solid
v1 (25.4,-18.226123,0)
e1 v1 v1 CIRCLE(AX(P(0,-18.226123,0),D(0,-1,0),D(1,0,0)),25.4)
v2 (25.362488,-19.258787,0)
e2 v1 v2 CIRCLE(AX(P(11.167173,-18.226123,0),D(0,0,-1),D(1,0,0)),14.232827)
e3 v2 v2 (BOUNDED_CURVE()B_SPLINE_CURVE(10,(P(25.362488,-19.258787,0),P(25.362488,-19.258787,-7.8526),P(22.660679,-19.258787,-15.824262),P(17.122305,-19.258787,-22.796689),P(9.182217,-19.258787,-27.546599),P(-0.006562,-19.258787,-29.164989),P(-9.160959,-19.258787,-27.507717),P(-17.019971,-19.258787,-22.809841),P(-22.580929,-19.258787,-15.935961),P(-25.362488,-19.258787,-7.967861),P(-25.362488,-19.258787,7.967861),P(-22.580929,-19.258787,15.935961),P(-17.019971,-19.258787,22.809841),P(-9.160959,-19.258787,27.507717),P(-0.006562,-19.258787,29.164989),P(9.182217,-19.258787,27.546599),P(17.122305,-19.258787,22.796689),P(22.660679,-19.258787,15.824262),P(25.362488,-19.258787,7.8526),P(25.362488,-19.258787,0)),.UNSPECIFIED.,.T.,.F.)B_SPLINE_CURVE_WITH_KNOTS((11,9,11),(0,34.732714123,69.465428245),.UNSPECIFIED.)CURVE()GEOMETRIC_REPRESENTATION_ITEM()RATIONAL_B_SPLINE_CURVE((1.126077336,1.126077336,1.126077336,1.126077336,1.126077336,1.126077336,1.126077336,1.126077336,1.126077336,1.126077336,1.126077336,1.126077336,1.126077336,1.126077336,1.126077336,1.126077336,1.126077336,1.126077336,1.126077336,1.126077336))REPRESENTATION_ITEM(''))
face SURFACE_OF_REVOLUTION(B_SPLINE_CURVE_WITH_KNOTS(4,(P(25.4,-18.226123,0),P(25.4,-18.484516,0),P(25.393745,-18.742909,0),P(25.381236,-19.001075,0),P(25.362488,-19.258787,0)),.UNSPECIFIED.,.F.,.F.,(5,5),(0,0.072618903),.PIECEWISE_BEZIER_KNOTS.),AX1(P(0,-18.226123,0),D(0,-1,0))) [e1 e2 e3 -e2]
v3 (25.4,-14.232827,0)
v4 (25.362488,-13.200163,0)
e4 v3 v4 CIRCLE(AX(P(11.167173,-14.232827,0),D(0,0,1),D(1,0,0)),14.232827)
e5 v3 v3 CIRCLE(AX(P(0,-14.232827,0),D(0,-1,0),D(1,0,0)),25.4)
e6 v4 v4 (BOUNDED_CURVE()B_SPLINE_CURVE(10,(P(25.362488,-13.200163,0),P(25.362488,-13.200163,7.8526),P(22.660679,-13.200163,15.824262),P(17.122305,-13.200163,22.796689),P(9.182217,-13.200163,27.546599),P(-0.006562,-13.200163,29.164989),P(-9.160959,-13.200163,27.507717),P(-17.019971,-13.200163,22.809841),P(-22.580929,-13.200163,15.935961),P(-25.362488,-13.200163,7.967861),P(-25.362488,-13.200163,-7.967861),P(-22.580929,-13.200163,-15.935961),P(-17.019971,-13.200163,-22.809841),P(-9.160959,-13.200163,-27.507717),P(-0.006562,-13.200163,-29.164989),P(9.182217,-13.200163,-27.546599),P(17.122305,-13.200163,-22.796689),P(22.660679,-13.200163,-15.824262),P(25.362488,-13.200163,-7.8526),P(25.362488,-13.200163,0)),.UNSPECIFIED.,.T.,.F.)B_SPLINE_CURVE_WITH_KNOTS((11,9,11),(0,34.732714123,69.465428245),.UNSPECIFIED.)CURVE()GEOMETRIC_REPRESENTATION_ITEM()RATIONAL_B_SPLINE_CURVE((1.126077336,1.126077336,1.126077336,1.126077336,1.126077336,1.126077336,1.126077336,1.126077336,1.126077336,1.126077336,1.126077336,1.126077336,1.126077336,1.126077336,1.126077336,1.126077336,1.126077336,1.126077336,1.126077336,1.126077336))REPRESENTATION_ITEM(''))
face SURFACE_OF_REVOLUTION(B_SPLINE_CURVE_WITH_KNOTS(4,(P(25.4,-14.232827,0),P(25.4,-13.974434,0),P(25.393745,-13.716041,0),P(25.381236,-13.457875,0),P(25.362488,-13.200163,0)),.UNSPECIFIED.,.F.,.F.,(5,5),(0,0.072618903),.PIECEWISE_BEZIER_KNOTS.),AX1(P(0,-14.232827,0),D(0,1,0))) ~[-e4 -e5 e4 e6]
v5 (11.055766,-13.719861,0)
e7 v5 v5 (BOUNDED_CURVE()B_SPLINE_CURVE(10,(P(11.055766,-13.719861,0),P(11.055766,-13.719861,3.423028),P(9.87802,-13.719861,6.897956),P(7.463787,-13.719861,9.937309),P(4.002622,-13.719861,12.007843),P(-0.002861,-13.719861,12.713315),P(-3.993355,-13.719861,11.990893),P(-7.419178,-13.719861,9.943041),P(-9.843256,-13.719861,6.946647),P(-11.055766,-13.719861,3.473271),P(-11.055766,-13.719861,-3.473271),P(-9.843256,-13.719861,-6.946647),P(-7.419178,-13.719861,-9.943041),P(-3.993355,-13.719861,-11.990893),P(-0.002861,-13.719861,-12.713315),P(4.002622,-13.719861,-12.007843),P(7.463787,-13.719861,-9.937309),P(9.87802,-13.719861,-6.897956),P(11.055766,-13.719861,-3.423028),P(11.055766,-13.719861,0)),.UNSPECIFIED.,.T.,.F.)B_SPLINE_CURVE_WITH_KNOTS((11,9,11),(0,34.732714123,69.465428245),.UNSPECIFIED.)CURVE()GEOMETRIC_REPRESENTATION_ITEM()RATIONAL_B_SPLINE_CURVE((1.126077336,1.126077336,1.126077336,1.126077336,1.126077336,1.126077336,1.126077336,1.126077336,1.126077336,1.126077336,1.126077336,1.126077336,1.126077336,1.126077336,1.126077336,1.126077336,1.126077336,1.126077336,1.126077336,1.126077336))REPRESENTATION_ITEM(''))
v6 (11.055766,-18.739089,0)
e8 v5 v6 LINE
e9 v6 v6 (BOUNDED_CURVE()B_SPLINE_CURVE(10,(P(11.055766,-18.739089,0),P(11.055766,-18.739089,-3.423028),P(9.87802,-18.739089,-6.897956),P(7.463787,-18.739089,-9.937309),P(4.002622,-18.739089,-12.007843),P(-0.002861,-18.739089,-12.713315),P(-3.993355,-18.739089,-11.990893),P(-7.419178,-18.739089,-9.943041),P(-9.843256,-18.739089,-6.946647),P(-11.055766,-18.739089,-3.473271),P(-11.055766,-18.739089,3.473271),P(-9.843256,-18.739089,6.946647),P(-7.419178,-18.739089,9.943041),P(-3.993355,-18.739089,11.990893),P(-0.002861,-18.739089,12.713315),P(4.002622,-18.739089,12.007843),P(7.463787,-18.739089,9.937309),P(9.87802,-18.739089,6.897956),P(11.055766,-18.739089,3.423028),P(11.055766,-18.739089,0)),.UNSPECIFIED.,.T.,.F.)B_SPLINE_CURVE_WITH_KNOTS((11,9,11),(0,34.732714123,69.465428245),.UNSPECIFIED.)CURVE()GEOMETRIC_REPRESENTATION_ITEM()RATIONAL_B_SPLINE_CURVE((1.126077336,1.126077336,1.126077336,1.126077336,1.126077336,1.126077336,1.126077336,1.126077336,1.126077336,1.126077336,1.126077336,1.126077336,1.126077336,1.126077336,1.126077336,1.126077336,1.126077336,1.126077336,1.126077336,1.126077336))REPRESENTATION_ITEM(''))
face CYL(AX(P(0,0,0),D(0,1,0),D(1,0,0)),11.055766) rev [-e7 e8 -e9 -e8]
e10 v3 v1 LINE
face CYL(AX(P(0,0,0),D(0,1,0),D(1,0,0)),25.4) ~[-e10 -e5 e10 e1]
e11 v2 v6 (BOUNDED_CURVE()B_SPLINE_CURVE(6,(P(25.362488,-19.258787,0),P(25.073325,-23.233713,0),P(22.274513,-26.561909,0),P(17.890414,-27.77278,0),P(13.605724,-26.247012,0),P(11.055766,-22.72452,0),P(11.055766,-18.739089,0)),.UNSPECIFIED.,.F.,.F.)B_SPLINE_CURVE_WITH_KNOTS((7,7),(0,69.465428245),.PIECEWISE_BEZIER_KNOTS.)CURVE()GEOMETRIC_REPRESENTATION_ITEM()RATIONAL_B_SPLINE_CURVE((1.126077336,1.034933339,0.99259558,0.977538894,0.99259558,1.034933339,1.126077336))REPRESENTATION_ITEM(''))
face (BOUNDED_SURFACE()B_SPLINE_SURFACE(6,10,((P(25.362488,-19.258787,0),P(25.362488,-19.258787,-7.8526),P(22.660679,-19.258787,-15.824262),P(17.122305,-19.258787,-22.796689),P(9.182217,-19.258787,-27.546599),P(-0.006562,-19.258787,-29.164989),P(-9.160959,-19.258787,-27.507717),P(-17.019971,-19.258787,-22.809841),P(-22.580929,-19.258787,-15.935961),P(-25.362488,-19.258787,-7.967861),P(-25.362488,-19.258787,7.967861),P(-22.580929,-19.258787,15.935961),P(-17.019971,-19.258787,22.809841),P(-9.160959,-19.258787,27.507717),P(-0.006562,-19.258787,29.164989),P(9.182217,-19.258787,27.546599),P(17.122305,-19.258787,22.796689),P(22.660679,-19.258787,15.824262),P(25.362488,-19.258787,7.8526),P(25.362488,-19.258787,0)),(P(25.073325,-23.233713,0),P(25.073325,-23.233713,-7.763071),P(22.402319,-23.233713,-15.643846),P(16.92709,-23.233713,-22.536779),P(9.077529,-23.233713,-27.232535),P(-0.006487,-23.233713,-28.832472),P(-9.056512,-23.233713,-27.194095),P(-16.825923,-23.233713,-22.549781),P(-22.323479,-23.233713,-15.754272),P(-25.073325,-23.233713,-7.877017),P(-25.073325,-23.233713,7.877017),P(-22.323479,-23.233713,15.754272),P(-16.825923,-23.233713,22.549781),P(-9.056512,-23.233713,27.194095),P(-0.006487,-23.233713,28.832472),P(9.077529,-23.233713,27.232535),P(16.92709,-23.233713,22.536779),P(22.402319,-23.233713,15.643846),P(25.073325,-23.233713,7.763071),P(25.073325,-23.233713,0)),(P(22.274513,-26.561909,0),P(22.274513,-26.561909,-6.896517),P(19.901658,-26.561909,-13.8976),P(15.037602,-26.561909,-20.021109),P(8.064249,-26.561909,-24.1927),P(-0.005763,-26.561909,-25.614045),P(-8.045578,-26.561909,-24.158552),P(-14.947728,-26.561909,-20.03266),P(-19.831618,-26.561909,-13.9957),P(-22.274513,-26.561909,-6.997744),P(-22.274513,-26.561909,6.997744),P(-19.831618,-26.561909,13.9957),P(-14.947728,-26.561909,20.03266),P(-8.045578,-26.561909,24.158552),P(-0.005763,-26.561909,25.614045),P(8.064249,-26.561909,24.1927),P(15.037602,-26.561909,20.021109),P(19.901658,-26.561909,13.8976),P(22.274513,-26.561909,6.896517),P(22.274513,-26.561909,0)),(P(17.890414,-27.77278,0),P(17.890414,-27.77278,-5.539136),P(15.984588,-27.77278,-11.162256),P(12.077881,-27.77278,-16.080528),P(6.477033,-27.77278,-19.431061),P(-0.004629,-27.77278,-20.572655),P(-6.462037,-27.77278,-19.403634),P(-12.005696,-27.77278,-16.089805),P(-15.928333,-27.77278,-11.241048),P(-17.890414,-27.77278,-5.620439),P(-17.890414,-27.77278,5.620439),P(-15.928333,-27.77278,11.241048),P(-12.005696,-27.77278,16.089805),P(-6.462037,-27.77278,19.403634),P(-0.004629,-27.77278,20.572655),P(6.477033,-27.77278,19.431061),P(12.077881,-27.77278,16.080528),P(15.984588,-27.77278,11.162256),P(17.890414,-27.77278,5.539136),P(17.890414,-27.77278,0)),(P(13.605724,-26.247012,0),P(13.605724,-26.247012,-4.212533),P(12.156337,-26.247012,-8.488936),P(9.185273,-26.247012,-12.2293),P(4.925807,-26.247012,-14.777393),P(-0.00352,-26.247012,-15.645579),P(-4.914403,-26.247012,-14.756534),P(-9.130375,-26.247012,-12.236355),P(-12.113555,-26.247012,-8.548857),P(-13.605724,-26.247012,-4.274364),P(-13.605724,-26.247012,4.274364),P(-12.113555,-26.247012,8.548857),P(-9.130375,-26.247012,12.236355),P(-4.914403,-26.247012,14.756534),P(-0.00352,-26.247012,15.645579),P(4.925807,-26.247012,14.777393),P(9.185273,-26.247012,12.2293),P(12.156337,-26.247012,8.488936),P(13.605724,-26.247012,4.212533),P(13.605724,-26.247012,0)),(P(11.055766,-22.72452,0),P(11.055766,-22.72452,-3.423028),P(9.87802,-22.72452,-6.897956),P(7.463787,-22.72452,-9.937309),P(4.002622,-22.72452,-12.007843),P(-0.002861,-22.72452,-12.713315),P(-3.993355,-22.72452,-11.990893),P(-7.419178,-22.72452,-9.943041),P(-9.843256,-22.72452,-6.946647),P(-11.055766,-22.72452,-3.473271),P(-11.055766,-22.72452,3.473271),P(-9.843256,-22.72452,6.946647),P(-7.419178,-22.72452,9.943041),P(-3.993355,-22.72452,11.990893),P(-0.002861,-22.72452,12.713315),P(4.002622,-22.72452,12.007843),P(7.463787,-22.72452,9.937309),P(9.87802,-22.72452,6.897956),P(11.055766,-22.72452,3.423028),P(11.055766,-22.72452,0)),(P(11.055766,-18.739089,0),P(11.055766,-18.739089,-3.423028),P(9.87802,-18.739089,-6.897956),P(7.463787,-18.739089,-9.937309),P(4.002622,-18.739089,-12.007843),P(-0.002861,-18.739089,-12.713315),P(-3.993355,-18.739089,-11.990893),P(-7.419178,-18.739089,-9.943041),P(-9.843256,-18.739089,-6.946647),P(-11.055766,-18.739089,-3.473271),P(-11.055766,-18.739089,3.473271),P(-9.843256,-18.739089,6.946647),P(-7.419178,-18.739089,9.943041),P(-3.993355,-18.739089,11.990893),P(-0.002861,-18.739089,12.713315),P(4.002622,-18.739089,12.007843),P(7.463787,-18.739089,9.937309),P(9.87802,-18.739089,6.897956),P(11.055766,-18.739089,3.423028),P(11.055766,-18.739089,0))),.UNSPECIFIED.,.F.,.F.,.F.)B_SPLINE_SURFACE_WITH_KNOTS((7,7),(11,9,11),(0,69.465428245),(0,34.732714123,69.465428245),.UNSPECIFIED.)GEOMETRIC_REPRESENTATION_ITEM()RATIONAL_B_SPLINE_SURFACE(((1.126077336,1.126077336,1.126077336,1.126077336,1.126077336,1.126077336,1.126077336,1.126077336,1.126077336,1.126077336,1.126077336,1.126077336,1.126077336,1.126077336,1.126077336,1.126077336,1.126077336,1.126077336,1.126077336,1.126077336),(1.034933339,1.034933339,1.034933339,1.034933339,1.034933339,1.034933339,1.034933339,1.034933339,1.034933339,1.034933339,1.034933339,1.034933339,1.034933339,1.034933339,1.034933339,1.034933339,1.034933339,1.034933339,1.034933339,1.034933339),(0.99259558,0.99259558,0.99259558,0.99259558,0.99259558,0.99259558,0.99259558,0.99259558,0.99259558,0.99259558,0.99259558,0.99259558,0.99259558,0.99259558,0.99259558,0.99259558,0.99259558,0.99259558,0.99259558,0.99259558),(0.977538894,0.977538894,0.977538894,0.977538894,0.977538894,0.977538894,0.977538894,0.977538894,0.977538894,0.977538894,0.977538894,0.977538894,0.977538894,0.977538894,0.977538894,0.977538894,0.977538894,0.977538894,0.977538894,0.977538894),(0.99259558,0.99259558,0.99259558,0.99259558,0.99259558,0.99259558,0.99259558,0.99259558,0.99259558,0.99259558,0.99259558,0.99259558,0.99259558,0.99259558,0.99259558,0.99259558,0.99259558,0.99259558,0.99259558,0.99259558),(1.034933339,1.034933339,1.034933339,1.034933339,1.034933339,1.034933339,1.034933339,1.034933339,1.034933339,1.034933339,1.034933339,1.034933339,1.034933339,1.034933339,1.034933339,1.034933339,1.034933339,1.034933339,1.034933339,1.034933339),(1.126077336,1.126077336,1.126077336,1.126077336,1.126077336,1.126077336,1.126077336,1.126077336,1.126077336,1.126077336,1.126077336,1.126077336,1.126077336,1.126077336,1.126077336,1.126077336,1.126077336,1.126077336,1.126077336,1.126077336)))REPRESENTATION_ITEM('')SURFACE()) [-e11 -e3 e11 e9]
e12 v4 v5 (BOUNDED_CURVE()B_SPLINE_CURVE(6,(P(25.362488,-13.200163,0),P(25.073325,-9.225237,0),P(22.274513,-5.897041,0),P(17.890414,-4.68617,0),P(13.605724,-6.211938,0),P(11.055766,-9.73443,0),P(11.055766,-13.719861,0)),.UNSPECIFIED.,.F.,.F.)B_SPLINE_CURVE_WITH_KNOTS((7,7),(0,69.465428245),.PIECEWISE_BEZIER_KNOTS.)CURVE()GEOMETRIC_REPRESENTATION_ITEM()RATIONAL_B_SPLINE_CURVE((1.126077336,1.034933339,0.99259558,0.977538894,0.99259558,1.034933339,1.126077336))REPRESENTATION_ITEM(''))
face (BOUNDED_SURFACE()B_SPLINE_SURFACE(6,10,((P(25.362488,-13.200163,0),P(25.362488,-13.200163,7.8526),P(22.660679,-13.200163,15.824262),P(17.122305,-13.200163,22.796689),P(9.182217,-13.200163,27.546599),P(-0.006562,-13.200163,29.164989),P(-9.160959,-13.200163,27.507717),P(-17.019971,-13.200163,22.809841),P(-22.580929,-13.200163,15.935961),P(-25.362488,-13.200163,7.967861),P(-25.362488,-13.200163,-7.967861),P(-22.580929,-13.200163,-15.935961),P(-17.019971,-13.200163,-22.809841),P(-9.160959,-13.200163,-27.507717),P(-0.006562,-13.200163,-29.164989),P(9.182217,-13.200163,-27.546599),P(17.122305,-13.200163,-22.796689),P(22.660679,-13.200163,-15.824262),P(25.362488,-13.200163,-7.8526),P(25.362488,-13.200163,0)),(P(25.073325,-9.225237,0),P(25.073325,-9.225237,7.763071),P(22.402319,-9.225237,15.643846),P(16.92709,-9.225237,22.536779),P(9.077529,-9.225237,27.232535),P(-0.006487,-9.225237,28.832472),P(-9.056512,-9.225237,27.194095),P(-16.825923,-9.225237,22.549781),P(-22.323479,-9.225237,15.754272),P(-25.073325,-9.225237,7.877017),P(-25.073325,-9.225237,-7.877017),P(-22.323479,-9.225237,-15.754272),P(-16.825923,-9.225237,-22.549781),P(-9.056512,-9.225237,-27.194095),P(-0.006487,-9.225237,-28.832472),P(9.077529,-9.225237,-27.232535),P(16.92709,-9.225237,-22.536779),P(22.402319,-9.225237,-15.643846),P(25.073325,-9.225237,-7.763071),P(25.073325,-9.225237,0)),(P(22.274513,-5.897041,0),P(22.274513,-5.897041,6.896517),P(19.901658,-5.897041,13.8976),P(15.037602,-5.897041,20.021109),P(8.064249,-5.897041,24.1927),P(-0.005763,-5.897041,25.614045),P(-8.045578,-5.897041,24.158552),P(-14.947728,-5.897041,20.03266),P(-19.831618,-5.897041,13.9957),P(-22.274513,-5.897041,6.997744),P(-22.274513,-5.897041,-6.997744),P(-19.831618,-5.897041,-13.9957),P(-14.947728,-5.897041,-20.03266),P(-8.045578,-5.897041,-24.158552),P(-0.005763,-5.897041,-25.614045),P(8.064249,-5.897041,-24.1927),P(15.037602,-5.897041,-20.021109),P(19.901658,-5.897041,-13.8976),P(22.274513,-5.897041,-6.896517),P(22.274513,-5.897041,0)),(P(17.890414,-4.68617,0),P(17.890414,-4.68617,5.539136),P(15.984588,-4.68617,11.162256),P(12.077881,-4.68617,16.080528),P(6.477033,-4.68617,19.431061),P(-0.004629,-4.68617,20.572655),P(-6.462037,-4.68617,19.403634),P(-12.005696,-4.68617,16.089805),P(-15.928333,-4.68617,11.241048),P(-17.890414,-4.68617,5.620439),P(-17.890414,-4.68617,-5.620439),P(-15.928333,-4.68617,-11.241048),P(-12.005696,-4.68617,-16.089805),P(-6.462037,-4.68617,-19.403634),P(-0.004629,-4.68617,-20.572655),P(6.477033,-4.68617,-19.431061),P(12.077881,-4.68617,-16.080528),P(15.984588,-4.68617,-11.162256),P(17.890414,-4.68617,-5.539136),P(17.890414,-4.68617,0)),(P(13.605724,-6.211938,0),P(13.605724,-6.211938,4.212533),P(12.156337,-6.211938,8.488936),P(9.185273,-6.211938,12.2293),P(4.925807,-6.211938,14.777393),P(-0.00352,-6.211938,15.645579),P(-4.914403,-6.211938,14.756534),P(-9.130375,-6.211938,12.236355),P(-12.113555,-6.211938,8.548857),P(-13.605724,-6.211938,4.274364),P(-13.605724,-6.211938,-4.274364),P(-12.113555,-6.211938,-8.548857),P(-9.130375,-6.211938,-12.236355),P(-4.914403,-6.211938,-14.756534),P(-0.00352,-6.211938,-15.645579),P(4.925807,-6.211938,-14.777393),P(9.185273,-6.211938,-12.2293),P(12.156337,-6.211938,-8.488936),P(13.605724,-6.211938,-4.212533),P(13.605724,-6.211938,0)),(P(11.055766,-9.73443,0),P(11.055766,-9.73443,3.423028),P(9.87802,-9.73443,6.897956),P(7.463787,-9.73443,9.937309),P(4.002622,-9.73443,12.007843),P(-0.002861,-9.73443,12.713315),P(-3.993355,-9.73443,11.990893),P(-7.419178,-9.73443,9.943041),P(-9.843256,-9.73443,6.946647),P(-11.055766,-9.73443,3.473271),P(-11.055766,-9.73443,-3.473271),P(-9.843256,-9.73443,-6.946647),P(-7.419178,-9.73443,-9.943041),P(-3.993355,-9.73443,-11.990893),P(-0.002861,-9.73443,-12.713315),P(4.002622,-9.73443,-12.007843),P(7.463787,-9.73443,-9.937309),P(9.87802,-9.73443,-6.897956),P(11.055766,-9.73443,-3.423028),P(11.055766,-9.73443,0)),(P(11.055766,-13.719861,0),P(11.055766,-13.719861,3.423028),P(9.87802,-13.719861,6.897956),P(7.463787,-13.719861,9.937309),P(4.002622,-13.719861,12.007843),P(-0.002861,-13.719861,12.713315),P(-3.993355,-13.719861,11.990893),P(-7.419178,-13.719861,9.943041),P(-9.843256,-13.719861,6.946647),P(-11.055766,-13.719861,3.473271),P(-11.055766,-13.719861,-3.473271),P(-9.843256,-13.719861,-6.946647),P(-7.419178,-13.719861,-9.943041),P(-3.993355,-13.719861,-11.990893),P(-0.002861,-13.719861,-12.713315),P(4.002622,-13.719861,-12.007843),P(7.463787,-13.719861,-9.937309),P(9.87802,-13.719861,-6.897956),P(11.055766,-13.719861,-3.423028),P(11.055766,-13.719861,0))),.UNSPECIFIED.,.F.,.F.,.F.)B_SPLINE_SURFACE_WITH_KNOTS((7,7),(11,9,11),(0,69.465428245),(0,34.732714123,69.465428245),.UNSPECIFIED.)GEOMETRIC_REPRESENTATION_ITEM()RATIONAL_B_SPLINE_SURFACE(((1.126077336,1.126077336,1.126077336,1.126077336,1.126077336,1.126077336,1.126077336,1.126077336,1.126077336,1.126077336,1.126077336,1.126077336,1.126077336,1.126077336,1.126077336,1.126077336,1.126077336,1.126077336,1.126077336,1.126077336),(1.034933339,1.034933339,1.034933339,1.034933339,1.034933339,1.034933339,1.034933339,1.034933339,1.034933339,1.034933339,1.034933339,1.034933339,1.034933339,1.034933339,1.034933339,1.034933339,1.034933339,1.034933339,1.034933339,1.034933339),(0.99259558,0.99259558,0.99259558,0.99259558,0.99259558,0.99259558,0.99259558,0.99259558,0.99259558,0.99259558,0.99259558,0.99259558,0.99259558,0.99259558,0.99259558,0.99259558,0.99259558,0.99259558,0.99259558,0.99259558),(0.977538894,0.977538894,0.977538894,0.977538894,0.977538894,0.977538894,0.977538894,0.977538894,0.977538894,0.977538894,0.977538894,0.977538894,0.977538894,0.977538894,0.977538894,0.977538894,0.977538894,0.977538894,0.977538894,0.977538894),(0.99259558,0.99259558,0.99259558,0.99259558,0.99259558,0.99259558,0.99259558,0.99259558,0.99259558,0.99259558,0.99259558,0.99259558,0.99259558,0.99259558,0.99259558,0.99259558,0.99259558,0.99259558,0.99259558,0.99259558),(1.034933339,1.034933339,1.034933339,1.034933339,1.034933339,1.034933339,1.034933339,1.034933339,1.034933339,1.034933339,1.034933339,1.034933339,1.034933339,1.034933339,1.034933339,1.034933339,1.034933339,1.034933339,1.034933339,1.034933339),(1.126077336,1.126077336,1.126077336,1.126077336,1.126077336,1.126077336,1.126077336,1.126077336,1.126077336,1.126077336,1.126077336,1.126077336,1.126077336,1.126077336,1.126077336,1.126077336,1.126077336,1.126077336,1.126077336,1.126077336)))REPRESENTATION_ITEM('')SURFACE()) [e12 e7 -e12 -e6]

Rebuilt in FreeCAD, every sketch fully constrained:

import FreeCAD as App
import Part
import Sketcher
from FreeCAD import Vector
Q = App.Units.Quantity


def edges_at(feature, points):
    """Names of the edges that pass closest to the given points."""
    edges = feature.Shape.Edges
    near = lambda p: min(range(len(edges)), key=lambda i: edges[i].distToShape(Part.Vertex(*p))[0])
    return sorted({f"Edge{near(p) + 1}" for p in points})

doc = App.newDocument("Part")
body = doc.addObject("PartDesign::Body", "Body")

# Sketch on XZ plane
sketch1 = body.newObject("Sketcher::SketchObject", "Sketch")
sketch1.AttachmentSupport = (doc.getObject("XZ_Plane"), [""])
sketch1.MapMode = "FlatFace"
sketch1.addGeometry(Part.Circle(Vector(0, 0, 0), Vector(0, 0, 1), 25), False)
sketch1.addConstraint([
    Sketcher.Constraint("Coincident", 0, 3, -1, 1),
    Sketcher.Constraint("Diameter", 0, Q("2 in")),
])
pad1 = body.newObject("PartDesign::Pad", "Pad")
pad1.Profile = sketch1
pad1.Length = 32.45895
doc.recompute()

fillet = body.newObject("PartDesign::Fillet", "Fillet")
fillet.Base = (pad1, edges_at(pad1, [(-25.4, -32.459, 0), (-25.4, 0, 0)]))
fillet.Radius = 14.232827

# Sketch on XZ plane
sketch2 = body.newObject("Sketcher::SketchObject", "Sketch001")
sketch2.AttachmentSupport = (doc.getObject("XZ_Plane"), [""])
sketch2.MapMode = "FlatFace"
sketch2.addGeometry(Part.Circle(Vector(0, 0, 0), Vector(0, 0, 1), 11), False)
sketch2.addConstraint([
    Sketcher.Constraint("Coincident", 0, 3, -1, 1),
    Sketcher.Constraint("Diameter", 0, 22.111533),
])
pocket1 = body.newObject("PartDesign::Pocket", "Pocket")
pocket1.Profile = sketch2
pocket1.Length = 97.05153
pocket1.Reversed = True
doc.recompute()

fillet2 = body.newObject("PartDesign::Fillet", "Fillet001")
fillet2.Base = (pocket1, edges_at(pocket1, [(-11.056, 0, 0), (11.056, -16.229, 0), (-11.056, -32.459, 0)]))
fillet2.Radius = Q("0.282 in")

doc.recompute()
